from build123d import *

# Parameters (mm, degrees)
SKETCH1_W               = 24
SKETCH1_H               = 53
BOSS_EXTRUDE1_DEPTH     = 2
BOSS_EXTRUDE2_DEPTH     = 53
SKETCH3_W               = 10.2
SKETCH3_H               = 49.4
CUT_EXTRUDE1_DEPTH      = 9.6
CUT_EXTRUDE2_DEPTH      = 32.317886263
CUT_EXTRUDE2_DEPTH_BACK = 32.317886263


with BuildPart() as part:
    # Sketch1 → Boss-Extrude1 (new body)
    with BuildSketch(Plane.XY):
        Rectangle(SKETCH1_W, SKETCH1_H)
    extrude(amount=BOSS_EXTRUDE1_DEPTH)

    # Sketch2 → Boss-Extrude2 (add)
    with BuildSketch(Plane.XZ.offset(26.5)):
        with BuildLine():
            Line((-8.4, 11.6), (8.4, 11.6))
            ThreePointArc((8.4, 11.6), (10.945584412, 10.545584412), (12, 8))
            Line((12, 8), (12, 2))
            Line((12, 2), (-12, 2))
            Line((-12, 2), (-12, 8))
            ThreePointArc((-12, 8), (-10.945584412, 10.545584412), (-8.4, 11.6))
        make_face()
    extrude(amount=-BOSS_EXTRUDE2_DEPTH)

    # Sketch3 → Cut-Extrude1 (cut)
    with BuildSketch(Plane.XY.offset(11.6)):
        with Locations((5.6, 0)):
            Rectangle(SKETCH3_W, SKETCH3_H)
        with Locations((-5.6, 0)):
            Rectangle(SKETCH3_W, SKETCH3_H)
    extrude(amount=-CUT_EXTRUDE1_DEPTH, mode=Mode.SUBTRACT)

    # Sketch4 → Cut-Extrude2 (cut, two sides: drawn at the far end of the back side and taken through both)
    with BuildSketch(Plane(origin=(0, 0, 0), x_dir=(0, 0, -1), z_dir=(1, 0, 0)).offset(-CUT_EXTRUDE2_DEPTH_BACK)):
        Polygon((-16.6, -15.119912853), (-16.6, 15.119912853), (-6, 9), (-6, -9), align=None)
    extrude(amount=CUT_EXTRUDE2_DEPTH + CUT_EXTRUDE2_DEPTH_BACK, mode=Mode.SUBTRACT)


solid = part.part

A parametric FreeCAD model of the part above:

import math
import FreeCAD as App
import Part
import Sketcher
from FreeCAD import Vector
Q = App.Units.Quantity


def add_polygon(sketch, points):
    """Adds a closed chain of lines whose ends are joined by coincident constraints."""
    first, n = sketch.GeometryCount, len(points)
    for a, b in zip(points, points[1:] + points[:1]):
        sketch.addGeometry(Part.LineSegment(App.Vector(*a, 0), App.Vector(*b, 0)), False)
    for i in range(n):
        sketch.addConstraint(Sketcher.Constraint("Coincident", first + i, 2, first + (i + 1) % n, 1))

doc = App.newDocument("Part")
body = doc.addObject("PartDesign::Body", "Body")

# Sketch on XY plane
sketch1 = body.newObject("Sketcher::SketchObject", "Sketch")
sketch1.AttachmentSupport = (doc.getObject("XY_Plane"), [""])
sketch1.MapMode = "FlatFace"
add_polygon(sketch1, [(-12, 26.5), (-12, -26.5), (12, -26.5), (12, 26.5)])  # lines 0-3
sketch1.addConstraint([
    Sketcher.Constraint("Vertical", 0),
    Sketcher.Constraint("Horizontal", 1),
    Sketcher.Constraint("Vertical", 2),
    Sketcher.Constraint("Horizontal", 3),
    Sketcher.Constraint("Symmetric", 0, 2, 2, 2, -1, 1),
    Sketcher.Constraint("DistanceX", 1, 1, 1, 2, 24.0),
    Sketcher.Constraint("DistanceY", 0, 2, 0, 1, 53.0),
])
pad1 = body.newObject("PartDesign::Pad", "Pad")
pad1.Profile = sketch1
pad1.Length = 2

# Sketch on XZ plane
sketch2 = body.newObject("Sketcher::SketchObject", "Sketch001")
sketch2.AttachmentSupport = (doc.getObject("XZ_Plane"), [""])
sketch2.MapMode = "FlatFace"
sketch2.AttachmentOffset = App.Placement(Vector(0, 0, 26.5), App.Rotation())
sketch2.addGeometry([
    Part.LineSegment(Vector(8.4, 11.6, 0), Vector(-8.4, 11.6, 0)),  # 0
    Part.ArcOfCircle(Part.Circle(Vector(-8.4, 8, 0), Vector(0, 0, 1), 3.6), math.radians(90), math.radians(180)),  # 1
    Part.LineSegment(Vector(-12, 8, 0), Vector(-12, 2, 0)),  # 2
    Part.LineSegment(Vector(-12, 2, 0), Vector(12, 2, 0)),  # 3
    Part.LineSegment(Vector(12, 2, 0), Vector(12, 8, 0)),  # 4
    Part.ArcOfCircle(Part.Circle(Vector(8.4, 8, 0), Vector(0, 0, 1), 3.6), math.radians(0), math.radians(90)),  # 5
], False)
sketch2.addConstraint([
    Sketcher.Constraint("Tangent", 0, 2, 1, 1),
    Sketcher.Constraint("Tangent", 1, 2, 2, 1),
    Sketcher.Constraint("Coincident", 2, 2, 3, 1),
    Sketcher.Constraint("Coincident", 3, 2, 4, 1),
    Sketcher.Constraint("Tangent", 4, 2, 5, 1),
    Sketcher.Constraint("Tangent", 5, 2, 0, 1),
    Sketcher.Constraint("Horizontal", 0),
    Sketcher.Constraint("Vertical", 2),
    Sketcher.Constraint("Horizontal", 3),
    Sketcher.Constraint("Vertical", 4),
    Sketcher.Constraint("Equal", 1, 5),
    Sketcher.Constraint("Radius", 1, 3.6),
    Sketcher.Constraint("DistanceX", 3, 1, 3, 2, 24.0),
    Sketcher.Constraint("DistanceY", 2, 2, 2, 1, 6.0),
    Sketcher.Constraint("DistanceY", -1, 1, 1, 3, 8.0),
    Sketcher.Constraint("DistanceX", 1, 2, -1, 1, 12.0),
])
pad2 = body.newObject("PartDesign::Pad", "Pad001")
pad2.Profile = sketch2
pad2.Length = 53
pad2.Reversed = True

# Sketch on XY plane
sketch3 = body.newObject("Sketcher::SketchObject", "Sketch002")
sketch3.AttachmentSupport = (doc.getObject("XY_Plane"), [""])
sketch3.MapMode = "FlatFace"
sketch3.AttachmentOffset = App.Placement(Vector(0, 0, 11.6), App.Rotation())
add_polygon(sketch3, [(0.5, 24.7), (0.5, -24.7), (10.7, -24.7), (10.7, 24.7)])  # lines 0-3
add_polygon(sketch3, [(-10.7, 24.7), (-10.7, -24.7), (-0.5, -24.7), (-0.5, 24.7)])  # lines 4-7
sketch3.addConstraint([
    Sketcher.Constraint("Vertical", 0),
    Sketcher.Constraint("Horizontal", 1),
    Sketcher.Constraint("Vertical", 2),
    Sketcher.Constraint("Horizontal", 3),
    Sketcher.Constraint("Vertical", 4),
    Sketcher.Constraint("Horizontal", 5),
    Sketcher.Constraint("Vertical", 6),
    Sketcher.Constraint("Horizontal", 7),
    Sketcher.Constraint("Symmetric", 2, 2, 4, 2, -1, 1),
    Sketcher.Constraint("Symmetric", 0, 2, 6, 2, -1, 1),
    Sketcher.Constraint("Horizontal", 1, 2, 4, 2),
    Sketcher.Constraint("DistanceX", 1, 1, 1, 2, 10.2),
    Sketcher.Constraint("DistanceY", 0, 2, 0, 1, 49.4),
    Sketcher.Constraint("DistanceX", 5, 2, 0, 2, 1.0),
])
pocket1 = body.newObject("PartDesign::Pocket", "Pocket")
pocket1.Profile = sketch3
pocket1.Length = 9.6

# Sketch on YZ plane
sketch4 = body.newObject("Sketcher::SketchObject", "Sketch003")
sketch4.AttachmentSupport = (doc.getObject("YZ_Plane"), [""])
sketch4.MapMode = "FlatFace"
add_polygon(sketch4, [(15.119913, 16.6), (-15.119913, 16.6), (-9, 6), (9, 6)])  # lines 0-3
sketch4.addConstraint([
    Sketcher.Constraint("Horizontal", 0),
    Sketcher.Constraint("Horizontal", 2),
    Sketcher.Constraint("Equal", 1, 3),
    Sketcher.Constraint("DistanceX", 2, 1, 2, 2, 18.0),
    Sketcher.Constraint("Angle", 1, Q("-60 deg")),
    Sketcher.Constraint("DistanceX", 1, 2, -1, 1, 9.0),
    Sketcher.Constraint("DistanceY", -1, 1, 1, 2, 6.0),
    Sketcher.Constraint("DistanceY", -1, 1, 0, 2, 16.6),
])
pocket2 = body.newObject("PartDesign::Pocket", "Pocket001")
pocket2.Profile = sketch4
pocket2.Type = "ThroughAll"
pocket2.Midplane = True

doc.recompute()
